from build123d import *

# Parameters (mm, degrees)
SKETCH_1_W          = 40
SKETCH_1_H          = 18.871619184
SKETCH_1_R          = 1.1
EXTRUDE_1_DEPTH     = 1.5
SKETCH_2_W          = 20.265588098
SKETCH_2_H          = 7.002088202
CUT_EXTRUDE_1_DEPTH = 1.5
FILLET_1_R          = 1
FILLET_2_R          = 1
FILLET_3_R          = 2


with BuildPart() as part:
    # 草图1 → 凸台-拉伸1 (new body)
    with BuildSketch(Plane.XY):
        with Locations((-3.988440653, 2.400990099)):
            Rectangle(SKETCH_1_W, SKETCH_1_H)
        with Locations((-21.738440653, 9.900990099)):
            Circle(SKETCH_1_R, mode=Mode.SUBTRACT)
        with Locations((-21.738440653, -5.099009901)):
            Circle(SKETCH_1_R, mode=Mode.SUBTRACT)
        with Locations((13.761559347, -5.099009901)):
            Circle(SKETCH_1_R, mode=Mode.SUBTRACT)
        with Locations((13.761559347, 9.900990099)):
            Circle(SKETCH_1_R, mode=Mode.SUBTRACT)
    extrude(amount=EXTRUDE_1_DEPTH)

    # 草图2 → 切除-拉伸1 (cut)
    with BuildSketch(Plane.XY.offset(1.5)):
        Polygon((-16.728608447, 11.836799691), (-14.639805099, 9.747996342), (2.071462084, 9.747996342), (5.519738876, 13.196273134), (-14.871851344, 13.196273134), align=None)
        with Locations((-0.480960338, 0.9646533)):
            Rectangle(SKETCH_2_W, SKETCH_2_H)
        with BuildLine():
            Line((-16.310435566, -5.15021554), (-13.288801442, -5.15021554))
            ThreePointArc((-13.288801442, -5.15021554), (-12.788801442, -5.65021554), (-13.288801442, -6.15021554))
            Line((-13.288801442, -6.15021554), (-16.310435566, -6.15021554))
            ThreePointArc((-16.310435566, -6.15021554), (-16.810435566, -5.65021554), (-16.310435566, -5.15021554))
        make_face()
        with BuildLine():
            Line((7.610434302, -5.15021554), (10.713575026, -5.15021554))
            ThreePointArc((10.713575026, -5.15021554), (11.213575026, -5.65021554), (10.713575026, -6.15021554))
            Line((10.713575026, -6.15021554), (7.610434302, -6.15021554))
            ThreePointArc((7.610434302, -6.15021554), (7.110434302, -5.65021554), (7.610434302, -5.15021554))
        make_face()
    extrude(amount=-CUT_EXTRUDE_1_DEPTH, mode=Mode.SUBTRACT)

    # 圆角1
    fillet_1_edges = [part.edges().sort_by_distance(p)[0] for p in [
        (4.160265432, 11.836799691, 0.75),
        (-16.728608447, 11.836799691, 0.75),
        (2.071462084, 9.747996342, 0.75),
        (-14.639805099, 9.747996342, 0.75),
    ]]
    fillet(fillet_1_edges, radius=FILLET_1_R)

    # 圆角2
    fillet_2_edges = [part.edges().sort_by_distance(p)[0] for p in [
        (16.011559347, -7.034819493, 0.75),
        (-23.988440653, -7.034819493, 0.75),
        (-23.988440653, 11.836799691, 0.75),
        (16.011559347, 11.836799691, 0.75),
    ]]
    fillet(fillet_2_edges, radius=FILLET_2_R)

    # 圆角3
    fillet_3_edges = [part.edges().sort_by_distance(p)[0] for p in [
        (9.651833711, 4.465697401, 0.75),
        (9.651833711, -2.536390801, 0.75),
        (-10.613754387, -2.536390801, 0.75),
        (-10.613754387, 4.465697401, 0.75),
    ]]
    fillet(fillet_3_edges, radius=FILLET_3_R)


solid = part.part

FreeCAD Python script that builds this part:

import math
import FreeCAD as App
import Part
import Sketcher
Q = App.Units.Quantity


def edges_at(feature, points):
    """Names of the edges that pass closest to the given points."""
    edges = feature.Shape.Edges
    near = lambda p: min(range(len(edges)), key=lambda i: edges[i].distToShape(Part.Vertex(*p))[0])
    return sorted({f"Edge{near(p) + 1}" for p in points})

doc = App.newDocument("Part")
body = doc.addObject("PartDesign::Body", "Body")

# Sketch on XY plane
sketch1 = body.newObject("Sketcher::SketchObject", "Sketch")
sketch1.AttachmentSupport = (doc.getObject("XY_Plane"), [""])
sketch1.MapMode = "FlatFace"
sketch1.addGeometry(Part.LineSegment(App.Vector(-24, 11.8, 0), App.Vector(-24, -7, 0)), False)
sketch1.addGeometry(Part.LineSegment(App.Vector(-24, -7, 0), App.Vector(16, -7, 0)), False)
sketch1.addGeometry(Part.LineSegment(App.Vector(16, -7, 0), App.Vector(16, 11.8, 0)), False)
sketch1.addGeometry(Part.LineSegment(App.Vector(16, 11.8, 0), App.Vector(-24, 11.8, 0)), False)
sketch1.addGeometry(Part.Circle(App.Vector(-21.7, -5.1, 0), App.Vector(0, 0, 1), 1.1), False)
sketch1.addGeometry(Part.Circle(App.Vector(13.8, -5.1, 0), App.Vector(0, 0, 1), 1.1), False)
sketch1.addGeometry(Part.Circle(App.Vector(-21.7, 9.9, 0), App.Vector(0, 0, 1), 1.1), False)
sketch1.addGeometry(Part.Circle(App.Vector(13.8, 9.9, 0), App.Vector(0, 0, 1), 1.1), False)
sketch1.addConstraint(Sketcher.Constraint("Coincident", 0, 2, 1, 1))
sketch1.addConstraint(Sketcher.Constraint("Coincident", 1, 2, 2, 1))
sketch1.addConstraint(Sketcher.Constraint("Coincident", 2, 2, 3, 1))
sketch1.addConstraint(Sketcher.Constraint("Coincident", 3, 2, 0, 1))
sketch1.addConstraint(Sketcher.Constraint("Vertical", 0))
sketch1.addConstraint(Sketcher.Constraint("Horizontal", 1))
sketch1.addConstraint(Sketcher.Constraint("Vertical", 2))
sketch1.addConstraint(Sketcher.Constraint("Horizontal", 3))
sketch1.addConstraint(Sketcher.Constraint("Equal", 4, 5))
sketch1.addConstraint(Sketcher.Constraint("Equal", 5, 6))
sketch1.addConstraint(Sketcher.Constraint("Equal", 6, 7))
sketch1.addConstraint(Sketcher.Constraint("Horizontal", 4, 3, 5, 3))
sketch1.addConstraint(Sketcher.Constraint("Horizontal", 6, 3, 7, 3))
sketch1.addConstraint(Sketcher.Constraint("Vertical", 4, 3, 6, 3))
sketch1.addConstraint(Sketcher.Constraint("Vertical", 5, 3, 7, 3))
sketch1.addConstraint(Sketcher.Constraint("Diameter", 4, Q("2.2 mm")))
sketch1.addConstraint(Sketcher.Constraint("DistanceX", 1, 1, 1, 2, Q("40 mm")))
sketch1.addConstraint(Sketcher.Constraint("DistanceY", 4, 3, 6, 3, Q("15 mm")))
sketch1.addConstraint(Sketcher.Constraint("DistanceX", 4, 3, 5, 3, Q("35.5 mm")))
sketch1.addConstraint(Sketcher.Constraint("DistanceX", 0, 2, 4, 3, Q("2.25 mm")))
sketch1.addConstraint(Sketcher.Constraint("DistanceY", 0, 2, 0, 1, Q("18.871619 mm")))
sketch1.addConstraint(Sketcher.Constraint("DistanceY", -1, 1, 2, 2, Q("11.8368 mm")))
sketch1.addConstraint(Sketcher.Constraint("DistanceX", 4, 3, -1, 1, Q("21.738441 mm")))
sketch1.addConstraint(Sketcher.Constraint("DistanceY", 4, 3, -1, 1, Q("5.09901 mm")))
pad1 = body.newObject("PartDesign::Pad", "Pad")
pad1.Profile = sketch1
pad1.Length = 1.5

# Sketch on XY plane
sketch2 = body.newObject("Sketcher::SketchObject", "Sketch001")
sketch2.AttachmentSupport = (doc.getObject("XY_Plane"), [""])
sketch2.MapMode = "FlatFace"
sketch2.AttachmentOffset = App.Placement(App.Vector(0, 0, 1.5), App.Rotation())
sketch2.addGeometry(Part.LineSegment(App.Vector(-16.7, 11.8, 0), App.Vector(-14.6, 9.7, 0)), False)
sketch2.addGeometry(Part.LineSegment(App.Vector(-14.6, 9.7, 0), App.Vector(2.1, 9.7, 0)), False)
sketch2.addGeometry(Part.LineSegment(App.Vector(2.1, 9.7, 0), App.Vector(5.5, 13.2, 0)), False)
sketch2.addGeometry(Part.LineSegment(App.Vector(5.5, 13.2, 0), App.Vector(-14.9, 13.2, 0)), False)
sketch2.addGeometry(Part.LineSegment(App.Vector(-14.9, 13.2, 0), App.Vector(-16.7, 11.8, 0)), False)
sketch2.addGeometry(Part.LineSegment(App.Vector(-10.6, 4.5, 0), App.Vector(-10.6, -2.5, 0)), False)
sketch2.addGeometry(Part.LineSegment(App.Vector(-10.6, -2.5, 0), App.Vector(9.7, -2.5, 0)), False)
sketch2.addGeometry(Part.LineSegment(App.Vector(9.7, -2.5, 0), App.Vector(9.7, 4.5, 0)), False)
sketch2.addGeometry(Part.LineSegment(App.Vector(9.7, 4.5, 0), App.Vector(-10.6, 4.5, 0)), False)
sketch2.addGeometry(Part.LineSegment(App.Vector(-13.3, -5.2, 0), App.Vector(-16.3, -5.2, 0)), False)
sketch2.addGeometry(Part.ArcOfCircle(Part.Circle(App.Vector(-16.3, -5.7, 0), App.Vector(0, 0, 1), 0.5), math.radians(90), math.radians(270)), False)
sketch2.addGeometry(Part.LineSegment(App.Vector(-16.3, -6.2, 0), App.Vector(-13.3, -6.2, 0)), False)
sketch2.addGeometry(Part.ArcOfCircle(Part.Circle(App.Vector(-13.3, -5.7, 0), App.Vector(0, 0, 1), 0.5), math.radians(-90), math.radians(90)), False)
sketch2.addGeometry(Part.LineSegment(App.Vector(10.7, -5.2, 0), App.Vector(7.6, -5.2, 0)), False)
sketch2.addGeometry(Part.ArcOfCircle(Part.Circle(App.Vector(7.6, -5.7, 0), App.Vector(0, 0, 1), 0.5), math.radians(90), math.radians(270)), False)
sketch2.addGeometry(Part.LineSegment(App.Vector(7.6, -6.2, 0), App.Vector(10.7, -6.2, 0)), False)
sketch2.addGeometry(Part.ArcOfCircle(Part.Circle(App.Vector(10.7, -5.7, 0), App.Vector(0, 0, 1), 0.5), math.radians(-90), math.radians(90)), False)
sketch2.addConstraint(Sketcher.Constraint("Coincident", 0, 2, 1, 1))
sketch2.addConstraint(Sketcher.Constraint("Coincident", 1, 2, 2, 1))
sketch2.addConstraint(Sketcher.Constraint("Coincident", 2, 2, 3, 1))
sketch2.addConstraint(Sketcher.Constraint("Coincident", 3, 2, 4, 1))
sketch2.addConstraint(Sketcher.Constraint("Coincident", 4, 2, 0, 1))
sketch2.addConstraint(Sketcher.Constraint("Coincident", 5, 2, 6, 1))
sketch2.addConstraint(Sketcher.Constraint("Coincident", 6, 2, 7, 1))
sketch2.addConstraint(Sketcher.Constraint("Coincident", 7, 2, 8, 1))
sketch2.addConstraint(Sketcher.Constraint("Coincident", 8, 2, 5, 1))
sketch2.addConstraint(Sketcher.Constraint("Tangent", 9, 2, 10, 1))
sketch2.addConstraint(Sketcher.Constraint("Tangent", 10, 2, 11, 1))
sketch2.addConstraint(Sketcher.Constraint("Tangent", 11, 2, 12, 1))
sketch2.addConstraint(Sketcher.Constraint("Tangent", 12, 2, 9, 1))
sketch2.addConstraint(Sketcher.Constraint("Tangent", 13, 2, 14, 1))
sketch2.addConstraint(Sketcher.Constraint("Tangent", 14, 2, 15, 1))
sketch2.addConstraint(Sketcher.Constraint("Tangent", 15, 2, 16, 1))
sketch2.addConstraint(Sketcher.Constraint("Tangent", 16, 2, 13, 1))
sketch2.addConstraint(Sketcher.Constraint("Horizontal", 1))
sketch2.addConstraint(Sketcher.Constraint("Horizontal", 3))
sketch2.addConstraint(Sketcher.Constraint("Vertical", 5))
sketch2.addConstraint(Sketcher.Constraint("Horizontal", 6))
sketch2.addConstraint(Sketcher.Constraint("Vertical", 7))
sketch2.addConstraint(Sketcher.Constraint("Horizontal", 8))
sketch2.addConstraint(Sketcher.Constraint("Horizontal", 9))
sketch2.addConstraint(Sketcher.Constraint("Horizontal", 11))
sketch2.addConstraint(Sketcher.Constraint("Horizontal", 13))
sketch2.addConstraint(Sketcher.Constraint("Horizontal", 15))
sketch2.addConstraint(Sketcher.Constraint("Equal", 12, 14))
sketch2.addConstraint(Sketcher.Constraint("Perpendicular", 0, 2))
sketch2.addConstraint(Sketcher.Constraint("Horizontal", 12, 3, 14, 3))
sketch2.addConstraint(Sketcher.Constraint("Radius", 10, Q("0.5 mm")))
sketch2.addConstraint(Sketcher.Constraint("Angle", 0, Q("-45 deg")))
sketch2.addConstraint(Sketcher.Constraint("Distance", 2, Q("4.8766 mm")))
sketch2.addConstraint(Sketcher.Constraint("DistanceX", 3, 2, 3, 1, Q("20.39159 mm")))
sketch2.addConstraint(Sketcher.Constraint("DistanceX", 6, 1, 6, 2, Q("20.265588 mm")))
sketch2.addConstraint(Sketcher.Constraint("DistanceX", 13, 2, 13, 1, Q("3.103141 mm")))
sketch2.addConstraint(Sketcher.Constraint("DistanceY", 5, 2, 5, 1, Q("7.002088 mm")))
sketch2.addConstraint(Sketcher.Constraint("DistanceX", 12, 3, -1, 1, Q("13.288801 mm")))
sketch2.addConstraint(Sketcher.Constraint("DistanceY", -1, 1, 4, 2, Q("11.8368 mm")))
sketch2.addConstraint(Sketcher.Constraint("DistanceX", 14, 3, 6, 2, Q("2.041399 mm")))
sketch2.addConstraint(Sketcher.Constraint("DistanceY", 7, 2, 1, 2, Q("5.282299 mm")))
sketch2.addConstraint(Sketcher.Constraint("DistanceX", 1, 1, 1, 2, Q("16.711267 mm")))
sketch2.addConstraint(Sketcher.Constraint("DistanceX", 9, 2, 9, 1, Q("3.021634 mm")))
sketch2.addConstraint(Sketcher.Constraint("DistanceX", -1, 1, 2, 2, Q("5.519739 mm")))
sketch2.addConstraint(Sketcher.Constraint("DistanceX", 4, 2, -1, 1, Q("16.728608 mm")))
sketch2.addConstraint(Sketcher.Constraint("DistanceX", 10, 3, 14, 3, Q("23.92087 mm")))
sketch2.addConstraint(Sketcher.Constraint("DistanceY", 12, 3, 0, 2, Q("15.398212 mm")))
pocket1 = body.newObject("PartDesign::Pocket", "Pocket")
pocket1.Profile = sketch2
pocket1.Length = 1.5
doc.recompute()

fillet = body.newObject("PartDesign::Fillet", "Fillet")
fillet.Base = (pocket1, edges_at(pocket1, [
    (4.16, 11.837, 0.75),
    (-16.729, 11.837, 0.75),
    (2.071, 9.748, 0.75),
    (-14.64, 9.748, 0.75),
]))
fillet.Radius = 1
doc.recompute()

fillet2 = body.newObject("PartDesign::Fillet", "Fillet001")
fillet2.Base = (fillet, edges_at(fillet, [
    (16.012, -7.035, 0.75),
    (-23.988, -7.035, 0.75),
    (-23.988, 11.837, 0.75),
    (16.012, 11.837, 0.75),
]))
fillet2.Radius = 1
doc.recompute()

fillet3 = body.newObject("PartDesign::Fillet", "Fillet002")
fillet3.Base = (fillet2, edges_at(fillet2, [
    (9.652, 4.466, 0.75),
    (9.652, -2.536, 0.75),
    (-10.614, -2.536, 0.75),
    (-10.614, 4.466, 0.75),
]))
fillet3.Radius = 2

doc.recompute()
